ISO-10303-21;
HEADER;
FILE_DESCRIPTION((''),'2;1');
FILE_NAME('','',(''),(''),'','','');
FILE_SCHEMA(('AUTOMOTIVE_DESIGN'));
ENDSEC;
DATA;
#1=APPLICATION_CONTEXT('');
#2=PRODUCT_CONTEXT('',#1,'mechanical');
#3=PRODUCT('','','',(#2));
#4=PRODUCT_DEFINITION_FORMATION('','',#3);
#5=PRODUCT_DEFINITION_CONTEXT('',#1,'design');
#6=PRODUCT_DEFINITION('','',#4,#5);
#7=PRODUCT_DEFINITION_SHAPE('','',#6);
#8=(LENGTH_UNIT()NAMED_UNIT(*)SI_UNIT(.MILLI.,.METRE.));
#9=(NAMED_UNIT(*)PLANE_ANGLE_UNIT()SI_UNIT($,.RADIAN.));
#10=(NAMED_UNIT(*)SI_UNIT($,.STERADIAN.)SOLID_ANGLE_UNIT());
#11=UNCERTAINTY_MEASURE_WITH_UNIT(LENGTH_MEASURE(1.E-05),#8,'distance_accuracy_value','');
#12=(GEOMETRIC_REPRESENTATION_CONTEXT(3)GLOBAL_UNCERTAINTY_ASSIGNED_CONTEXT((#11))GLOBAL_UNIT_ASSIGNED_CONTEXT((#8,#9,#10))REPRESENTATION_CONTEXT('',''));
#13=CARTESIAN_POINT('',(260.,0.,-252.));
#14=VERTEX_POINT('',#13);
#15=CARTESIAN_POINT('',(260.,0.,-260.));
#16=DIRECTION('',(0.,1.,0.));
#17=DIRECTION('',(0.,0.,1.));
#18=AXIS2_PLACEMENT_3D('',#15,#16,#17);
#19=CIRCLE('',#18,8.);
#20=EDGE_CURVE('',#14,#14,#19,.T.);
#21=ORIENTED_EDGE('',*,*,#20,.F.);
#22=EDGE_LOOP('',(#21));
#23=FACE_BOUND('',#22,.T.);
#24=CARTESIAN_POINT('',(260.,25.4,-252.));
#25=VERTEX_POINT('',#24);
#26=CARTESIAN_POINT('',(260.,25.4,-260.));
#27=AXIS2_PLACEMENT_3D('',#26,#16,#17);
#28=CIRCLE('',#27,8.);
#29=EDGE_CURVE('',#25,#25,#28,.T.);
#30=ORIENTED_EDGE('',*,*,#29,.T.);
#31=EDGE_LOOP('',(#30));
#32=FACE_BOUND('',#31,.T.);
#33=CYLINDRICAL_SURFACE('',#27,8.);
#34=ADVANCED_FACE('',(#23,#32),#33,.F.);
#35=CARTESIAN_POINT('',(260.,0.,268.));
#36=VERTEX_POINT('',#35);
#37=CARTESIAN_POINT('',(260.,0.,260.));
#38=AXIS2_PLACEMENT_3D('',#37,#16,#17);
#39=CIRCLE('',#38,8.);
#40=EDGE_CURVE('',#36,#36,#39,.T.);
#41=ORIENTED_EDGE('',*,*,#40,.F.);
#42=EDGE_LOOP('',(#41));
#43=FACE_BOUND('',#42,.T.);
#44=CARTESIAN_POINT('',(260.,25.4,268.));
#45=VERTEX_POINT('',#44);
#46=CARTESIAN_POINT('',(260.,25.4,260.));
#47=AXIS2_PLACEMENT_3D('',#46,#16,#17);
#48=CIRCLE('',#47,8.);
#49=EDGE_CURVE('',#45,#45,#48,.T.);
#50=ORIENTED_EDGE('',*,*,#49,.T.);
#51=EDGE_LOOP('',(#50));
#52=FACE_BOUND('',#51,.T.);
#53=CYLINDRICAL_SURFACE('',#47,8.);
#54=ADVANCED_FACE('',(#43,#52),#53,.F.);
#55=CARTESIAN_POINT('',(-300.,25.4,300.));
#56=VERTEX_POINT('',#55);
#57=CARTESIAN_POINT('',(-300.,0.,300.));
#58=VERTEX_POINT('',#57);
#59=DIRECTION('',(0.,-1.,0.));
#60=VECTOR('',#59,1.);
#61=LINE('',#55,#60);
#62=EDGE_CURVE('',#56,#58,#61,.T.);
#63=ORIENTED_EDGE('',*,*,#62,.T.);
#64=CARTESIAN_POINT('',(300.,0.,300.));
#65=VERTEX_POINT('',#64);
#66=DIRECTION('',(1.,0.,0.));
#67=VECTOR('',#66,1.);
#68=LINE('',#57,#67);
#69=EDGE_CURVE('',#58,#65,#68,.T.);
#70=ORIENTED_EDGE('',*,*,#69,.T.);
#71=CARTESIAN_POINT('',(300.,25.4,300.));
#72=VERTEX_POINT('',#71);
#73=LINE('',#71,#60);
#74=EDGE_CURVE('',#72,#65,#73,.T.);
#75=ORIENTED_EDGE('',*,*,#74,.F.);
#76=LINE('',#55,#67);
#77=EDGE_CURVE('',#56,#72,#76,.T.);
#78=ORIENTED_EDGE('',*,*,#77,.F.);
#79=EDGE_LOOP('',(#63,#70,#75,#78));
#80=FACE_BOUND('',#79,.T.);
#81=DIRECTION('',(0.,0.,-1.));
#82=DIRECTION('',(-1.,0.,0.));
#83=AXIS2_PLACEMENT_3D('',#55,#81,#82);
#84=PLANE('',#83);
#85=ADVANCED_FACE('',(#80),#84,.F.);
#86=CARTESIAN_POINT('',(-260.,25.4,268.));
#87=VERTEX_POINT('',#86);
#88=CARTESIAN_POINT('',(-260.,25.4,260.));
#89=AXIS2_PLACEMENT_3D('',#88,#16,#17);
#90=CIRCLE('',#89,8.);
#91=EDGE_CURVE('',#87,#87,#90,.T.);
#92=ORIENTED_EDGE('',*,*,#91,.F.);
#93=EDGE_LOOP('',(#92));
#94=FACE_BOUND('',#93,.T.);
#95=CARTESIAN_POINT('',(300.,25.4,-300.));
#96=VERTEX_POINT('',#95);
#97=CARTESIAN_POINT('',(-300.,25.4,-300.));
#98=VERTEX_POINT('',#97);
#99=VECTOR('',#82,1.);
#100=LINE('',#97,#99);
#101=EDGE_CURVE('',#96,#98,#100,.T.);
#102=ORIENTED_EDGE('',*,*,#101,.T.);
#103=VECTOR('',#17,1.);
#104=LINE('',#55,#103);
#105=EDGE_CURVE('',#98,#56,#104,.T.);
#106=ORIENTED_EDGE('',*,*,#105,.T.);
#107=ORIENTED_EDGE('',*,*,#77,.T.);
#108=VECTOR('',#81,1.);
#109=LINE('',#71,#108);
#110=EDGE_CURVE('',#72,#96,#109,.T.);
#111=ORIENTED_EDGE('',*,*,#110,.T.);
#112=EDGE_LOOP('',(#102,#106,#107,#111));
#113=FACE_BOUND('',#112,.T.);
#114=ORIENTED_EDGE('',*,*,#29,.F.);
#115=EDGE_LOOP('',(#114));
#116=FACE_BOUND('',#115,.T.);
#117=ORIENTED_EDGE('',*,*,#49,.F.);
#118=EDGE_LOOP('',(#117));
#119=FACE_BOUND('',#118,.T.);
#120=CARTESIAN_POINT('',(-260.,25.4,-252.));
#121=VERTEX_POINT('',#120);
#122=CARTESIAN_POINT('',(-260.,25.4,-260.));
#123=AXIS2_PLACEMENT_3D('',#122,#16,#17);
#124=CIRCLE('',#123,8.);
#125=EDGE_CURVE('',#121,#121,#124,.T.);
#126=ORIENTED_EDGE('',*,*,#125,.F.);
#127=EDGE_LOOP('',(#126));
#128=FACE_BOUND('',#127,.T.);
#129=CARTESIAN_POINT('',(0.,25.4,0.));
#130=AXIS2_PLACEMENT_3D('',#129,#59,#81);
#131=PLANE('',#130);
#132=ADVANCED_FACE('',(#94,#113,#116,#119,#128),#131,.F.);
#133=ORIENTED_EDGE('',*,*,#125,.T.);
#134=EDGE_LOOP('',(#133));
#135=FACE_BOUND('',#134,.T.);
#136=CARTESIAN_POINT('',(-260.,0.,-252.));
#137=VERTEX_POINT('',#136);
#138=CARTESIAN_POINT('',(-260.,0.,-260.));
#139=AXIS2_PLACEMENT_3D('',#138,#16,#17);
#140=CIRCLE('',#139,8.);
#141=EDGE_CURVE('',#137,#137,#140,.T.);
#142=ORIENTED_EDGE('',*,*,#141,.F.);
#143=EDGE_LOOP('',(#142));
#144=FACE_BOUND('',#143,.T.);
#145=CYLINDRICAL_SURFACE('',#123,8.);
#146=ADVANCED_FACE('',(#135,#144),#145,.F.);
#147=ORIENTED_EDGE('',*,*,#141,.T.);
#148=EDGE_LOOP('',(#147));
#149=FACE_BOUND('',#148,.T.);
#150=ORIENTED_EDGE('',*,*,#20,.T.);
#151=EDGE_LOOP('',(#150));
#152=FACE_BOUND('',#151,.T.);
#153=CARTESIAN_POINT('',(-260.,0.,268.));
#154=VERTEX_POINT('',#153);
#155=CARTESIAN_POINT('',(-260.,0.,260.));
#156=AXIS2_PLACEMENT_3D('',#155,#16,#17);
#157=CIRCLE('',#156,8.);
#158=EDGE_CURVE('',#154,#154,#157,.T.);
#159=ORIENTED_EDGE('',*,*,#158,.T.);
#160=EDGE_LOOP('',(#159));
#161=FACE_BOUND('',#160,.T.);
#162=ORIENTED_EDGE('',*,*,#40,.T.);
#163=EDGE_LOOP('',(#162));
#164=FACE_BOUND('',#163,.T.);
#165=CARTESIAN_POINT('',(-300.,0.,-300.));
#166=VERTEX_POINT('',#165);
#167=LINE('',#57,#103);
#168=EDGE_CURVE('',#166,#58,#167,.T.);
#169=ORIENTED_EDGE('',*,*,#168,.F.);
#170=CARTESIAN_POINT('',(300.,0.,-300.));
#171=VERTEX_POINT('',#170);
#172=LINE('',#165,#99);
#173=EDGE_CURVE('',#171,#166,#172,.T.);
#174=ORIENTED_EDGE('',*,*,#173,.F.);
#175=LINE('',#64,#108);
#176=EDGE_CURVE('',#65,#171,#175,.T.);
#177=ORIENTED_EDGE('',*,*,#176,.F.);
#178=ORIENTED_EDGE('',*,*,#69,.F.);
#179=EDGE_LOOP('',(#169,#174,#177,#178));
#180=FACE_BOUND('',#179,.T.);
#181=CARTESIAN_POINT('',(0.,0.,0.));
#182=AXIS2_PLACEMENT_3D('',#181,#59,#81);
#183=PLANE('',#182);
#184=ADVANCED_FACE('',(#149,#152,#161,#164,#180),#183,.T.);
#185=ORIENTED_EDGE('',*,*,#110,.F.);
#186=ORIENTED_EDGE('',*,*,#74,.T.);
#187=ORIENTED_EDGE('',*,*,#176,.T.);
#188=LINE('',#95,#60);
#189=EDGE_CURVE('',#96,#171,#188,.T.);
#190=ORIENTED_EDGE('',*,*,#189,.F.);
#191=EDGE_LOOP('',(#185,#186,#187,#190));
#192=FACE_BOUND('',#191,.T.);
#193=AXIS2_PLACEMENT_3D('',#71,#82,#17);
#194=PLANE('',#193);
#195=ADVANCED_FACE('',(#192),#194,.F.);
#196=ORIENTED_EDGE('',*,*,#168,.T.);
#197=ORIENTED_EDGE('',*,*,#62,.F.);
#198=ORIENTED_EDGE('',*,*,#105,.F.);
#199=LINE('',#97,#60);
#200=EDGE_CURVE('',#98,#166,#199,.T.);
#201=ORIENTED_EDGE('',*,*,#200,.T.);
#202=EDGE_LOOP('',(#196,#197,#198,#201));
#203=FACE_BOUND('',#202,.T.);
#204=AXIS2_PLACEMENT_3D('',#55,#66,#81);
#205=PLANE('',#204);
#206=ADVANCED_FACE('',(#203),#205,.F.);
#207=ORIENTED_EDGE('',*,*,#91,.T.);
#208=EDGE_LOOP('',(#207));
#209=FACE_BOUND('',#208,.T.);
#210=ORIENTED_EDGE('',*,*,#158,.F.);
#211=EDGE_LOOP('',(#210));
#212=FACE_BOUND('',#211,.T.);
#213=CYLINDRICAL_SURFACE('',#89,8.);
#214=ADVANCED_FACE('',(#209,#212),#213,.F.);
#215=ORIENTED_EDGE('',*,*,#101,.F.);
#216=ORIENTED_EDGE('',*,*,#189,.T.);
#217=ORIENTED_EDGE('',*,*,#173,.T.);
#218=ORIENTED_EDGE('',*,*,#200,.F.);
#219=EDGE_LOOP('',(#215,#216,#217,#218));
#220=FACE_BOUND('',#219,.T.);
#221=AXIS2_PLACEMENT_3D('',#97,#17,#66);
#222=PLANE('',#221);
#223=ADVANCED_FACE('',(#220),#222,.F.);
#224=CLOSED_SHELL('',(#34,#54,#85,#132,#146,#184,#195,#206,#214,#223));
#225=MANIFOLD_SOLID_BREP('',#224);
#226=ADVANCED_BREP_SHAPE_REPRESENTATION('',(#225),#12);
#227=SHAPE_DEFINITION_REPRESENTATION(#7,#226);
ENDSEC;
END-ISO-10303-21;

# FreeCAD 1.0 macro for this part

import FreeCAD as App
import Part
import Sketcher

V = App.Vector
Q = App.Units.Quantity


def add_polygon(sketch, points):
    """Adds a closed chain of lines whose ends are joined by coincident constraints."""
    first, n = sketch.GeometryCount, len(points)
    for a, b in zip(points, points[1:] + points[:1]):
        sketch.addGeometry(Part.LineSegment(App.Vector(*a, 0), App.Vector(*b, 0)), False)
    for i in range(n):
        sketch.addConstraint(Sketcher.Constraint("Coincident", first + i, 2, first + (i + 1) % n, 1))

doc = App.newDocument("Part")
params = doc.addObject("Spreadsheet::Sheet", "Params")
for row, (alias, value) in enumerate([
    ("sketch1_width", "600 mm"),
    ("pad1_length", "25.4 mm"),
    ("sketch2_diameter", "16 mm"),
    ("hole_diameter", "16 mm"),
], start=1):
    params.set(f"A{row}", alias)
    params.set(f"B{row}", "=" + value)
    params.setAlias(f"B{row}", alias)

body = doc.addObject("PartDesign::Body", "Body")

# Sketch on XZ plane
sketch1 = body.newObject("Sketcher::SketchObject", "Sketch")
sketch1.AttachmentSupport = (doc.getObject("XZ_Plane"), [""])
sketch1.MapMode = "FlatFace"
add_polygon(sketch1, [(-300, -300), (-300, 300), (300, 300), (300, -300)])  # lines 0-3
sketch1.addConstraint(Sketcher.Constraint("Vertical", 0))
sketch1.addConstraint(Sketcher.Constraint("Horizontal", 1))
sketch1.addConstraint(Sketcher.Constraint("Vertical", 2))
sketch1.addConstraint(Sketcher.Constraint("Horizontal", 3))
sketch1.addConstraint(Sketcher.Constraint("Symmetric", 0, 2, 2, 2, -1, 1))
sketch1.addConstraint(Sketcher.Constraint("Equal", 3, 0))
sketch1.addConstraint(Sketcher.Constraint("DistanceX", 1, 1, 1, 2, Q("600 mm")))
sketch1.setExpression("Constraints[10]", "Params.sketch1_width")
pad1 = body.newObject("PartDesign::Pad", "Pad")
pad1.Profile = sketch1
pad1.setExpression("Length", "Params.pad1_length")
pad1.Reversed = True

# Sketch on XZ plane
sketch2 = body.newObject("Sketcher::SketchObject", "Sketch001")
sketch2.AttachmentSupport = (doc.getObject("XZ_Plane"), [""])
sketch2.MapMode = "FlatFace"
sketch2.AttachmentOffset = App.Placement(V(0, 0, -25.4), App.Rotation())
sketch2.addGeometry(Part.Circle(V(-260, -260, 0), V(0, 0, 1), 8), False)
sketch2.addGeometry(Part.Circle(V(260, -260, 0), V(0, 0, 1), 8), False)
sketch2.addGeometry(Part.Circle(V(260, 260, 0), V(0, 0, 1), 8), False)
sketch2.addGeometry(Part.Circle(V(-260, 260, 0), V(0, 0, 1), 8), False)
sketch2.addConstraint(Sketcher.Constraint("Equal", 0, 1))
sketch2.addConstraint(Sketcher.Constraint("Equal", 1, 2))
sketch2.addConstraint(Sketcher.Constraint("Equal", 2, 3))
sketch2.addConstraint(Sketcher.Constraint("Symmetric", 0, 3, 2, 3, -1, 1))
sketch2.addConstraint(Sketcher.Constraint("Symmetric", 1, 3, 3, 3, -1, 1))
sketch2.addConstraint(Sketcher.Constraint("Symmetric", 0, 3, 1, 3, -2))
sketch2.addConstraint(Sketcher.Constraint("Diameter", 0, Q("16 mm")))
sketch2.addConstraint(Sketcher.Constraint("DistanceX", 0, 3, -1, 1, Q("260 mm")))
sketch2.addConstraint(Sketcher.Constraint("DistanceY", 0, 3, -1, 1, Q("260 mm")))
sketch2.setExpression("Constraints[6]", "Params.sketch2_diameter")
doc.recompute()
hole = body.newObject("PartDesign::Hole", "Hole")
hole.Profile = sketch2
hole.ThreadType = "None"
hole.setExpression("Diameter", "Params.hole_diameter")
hole.DepthType = "ThroughAll"
hole.Reversed = True

doc.recompute()
